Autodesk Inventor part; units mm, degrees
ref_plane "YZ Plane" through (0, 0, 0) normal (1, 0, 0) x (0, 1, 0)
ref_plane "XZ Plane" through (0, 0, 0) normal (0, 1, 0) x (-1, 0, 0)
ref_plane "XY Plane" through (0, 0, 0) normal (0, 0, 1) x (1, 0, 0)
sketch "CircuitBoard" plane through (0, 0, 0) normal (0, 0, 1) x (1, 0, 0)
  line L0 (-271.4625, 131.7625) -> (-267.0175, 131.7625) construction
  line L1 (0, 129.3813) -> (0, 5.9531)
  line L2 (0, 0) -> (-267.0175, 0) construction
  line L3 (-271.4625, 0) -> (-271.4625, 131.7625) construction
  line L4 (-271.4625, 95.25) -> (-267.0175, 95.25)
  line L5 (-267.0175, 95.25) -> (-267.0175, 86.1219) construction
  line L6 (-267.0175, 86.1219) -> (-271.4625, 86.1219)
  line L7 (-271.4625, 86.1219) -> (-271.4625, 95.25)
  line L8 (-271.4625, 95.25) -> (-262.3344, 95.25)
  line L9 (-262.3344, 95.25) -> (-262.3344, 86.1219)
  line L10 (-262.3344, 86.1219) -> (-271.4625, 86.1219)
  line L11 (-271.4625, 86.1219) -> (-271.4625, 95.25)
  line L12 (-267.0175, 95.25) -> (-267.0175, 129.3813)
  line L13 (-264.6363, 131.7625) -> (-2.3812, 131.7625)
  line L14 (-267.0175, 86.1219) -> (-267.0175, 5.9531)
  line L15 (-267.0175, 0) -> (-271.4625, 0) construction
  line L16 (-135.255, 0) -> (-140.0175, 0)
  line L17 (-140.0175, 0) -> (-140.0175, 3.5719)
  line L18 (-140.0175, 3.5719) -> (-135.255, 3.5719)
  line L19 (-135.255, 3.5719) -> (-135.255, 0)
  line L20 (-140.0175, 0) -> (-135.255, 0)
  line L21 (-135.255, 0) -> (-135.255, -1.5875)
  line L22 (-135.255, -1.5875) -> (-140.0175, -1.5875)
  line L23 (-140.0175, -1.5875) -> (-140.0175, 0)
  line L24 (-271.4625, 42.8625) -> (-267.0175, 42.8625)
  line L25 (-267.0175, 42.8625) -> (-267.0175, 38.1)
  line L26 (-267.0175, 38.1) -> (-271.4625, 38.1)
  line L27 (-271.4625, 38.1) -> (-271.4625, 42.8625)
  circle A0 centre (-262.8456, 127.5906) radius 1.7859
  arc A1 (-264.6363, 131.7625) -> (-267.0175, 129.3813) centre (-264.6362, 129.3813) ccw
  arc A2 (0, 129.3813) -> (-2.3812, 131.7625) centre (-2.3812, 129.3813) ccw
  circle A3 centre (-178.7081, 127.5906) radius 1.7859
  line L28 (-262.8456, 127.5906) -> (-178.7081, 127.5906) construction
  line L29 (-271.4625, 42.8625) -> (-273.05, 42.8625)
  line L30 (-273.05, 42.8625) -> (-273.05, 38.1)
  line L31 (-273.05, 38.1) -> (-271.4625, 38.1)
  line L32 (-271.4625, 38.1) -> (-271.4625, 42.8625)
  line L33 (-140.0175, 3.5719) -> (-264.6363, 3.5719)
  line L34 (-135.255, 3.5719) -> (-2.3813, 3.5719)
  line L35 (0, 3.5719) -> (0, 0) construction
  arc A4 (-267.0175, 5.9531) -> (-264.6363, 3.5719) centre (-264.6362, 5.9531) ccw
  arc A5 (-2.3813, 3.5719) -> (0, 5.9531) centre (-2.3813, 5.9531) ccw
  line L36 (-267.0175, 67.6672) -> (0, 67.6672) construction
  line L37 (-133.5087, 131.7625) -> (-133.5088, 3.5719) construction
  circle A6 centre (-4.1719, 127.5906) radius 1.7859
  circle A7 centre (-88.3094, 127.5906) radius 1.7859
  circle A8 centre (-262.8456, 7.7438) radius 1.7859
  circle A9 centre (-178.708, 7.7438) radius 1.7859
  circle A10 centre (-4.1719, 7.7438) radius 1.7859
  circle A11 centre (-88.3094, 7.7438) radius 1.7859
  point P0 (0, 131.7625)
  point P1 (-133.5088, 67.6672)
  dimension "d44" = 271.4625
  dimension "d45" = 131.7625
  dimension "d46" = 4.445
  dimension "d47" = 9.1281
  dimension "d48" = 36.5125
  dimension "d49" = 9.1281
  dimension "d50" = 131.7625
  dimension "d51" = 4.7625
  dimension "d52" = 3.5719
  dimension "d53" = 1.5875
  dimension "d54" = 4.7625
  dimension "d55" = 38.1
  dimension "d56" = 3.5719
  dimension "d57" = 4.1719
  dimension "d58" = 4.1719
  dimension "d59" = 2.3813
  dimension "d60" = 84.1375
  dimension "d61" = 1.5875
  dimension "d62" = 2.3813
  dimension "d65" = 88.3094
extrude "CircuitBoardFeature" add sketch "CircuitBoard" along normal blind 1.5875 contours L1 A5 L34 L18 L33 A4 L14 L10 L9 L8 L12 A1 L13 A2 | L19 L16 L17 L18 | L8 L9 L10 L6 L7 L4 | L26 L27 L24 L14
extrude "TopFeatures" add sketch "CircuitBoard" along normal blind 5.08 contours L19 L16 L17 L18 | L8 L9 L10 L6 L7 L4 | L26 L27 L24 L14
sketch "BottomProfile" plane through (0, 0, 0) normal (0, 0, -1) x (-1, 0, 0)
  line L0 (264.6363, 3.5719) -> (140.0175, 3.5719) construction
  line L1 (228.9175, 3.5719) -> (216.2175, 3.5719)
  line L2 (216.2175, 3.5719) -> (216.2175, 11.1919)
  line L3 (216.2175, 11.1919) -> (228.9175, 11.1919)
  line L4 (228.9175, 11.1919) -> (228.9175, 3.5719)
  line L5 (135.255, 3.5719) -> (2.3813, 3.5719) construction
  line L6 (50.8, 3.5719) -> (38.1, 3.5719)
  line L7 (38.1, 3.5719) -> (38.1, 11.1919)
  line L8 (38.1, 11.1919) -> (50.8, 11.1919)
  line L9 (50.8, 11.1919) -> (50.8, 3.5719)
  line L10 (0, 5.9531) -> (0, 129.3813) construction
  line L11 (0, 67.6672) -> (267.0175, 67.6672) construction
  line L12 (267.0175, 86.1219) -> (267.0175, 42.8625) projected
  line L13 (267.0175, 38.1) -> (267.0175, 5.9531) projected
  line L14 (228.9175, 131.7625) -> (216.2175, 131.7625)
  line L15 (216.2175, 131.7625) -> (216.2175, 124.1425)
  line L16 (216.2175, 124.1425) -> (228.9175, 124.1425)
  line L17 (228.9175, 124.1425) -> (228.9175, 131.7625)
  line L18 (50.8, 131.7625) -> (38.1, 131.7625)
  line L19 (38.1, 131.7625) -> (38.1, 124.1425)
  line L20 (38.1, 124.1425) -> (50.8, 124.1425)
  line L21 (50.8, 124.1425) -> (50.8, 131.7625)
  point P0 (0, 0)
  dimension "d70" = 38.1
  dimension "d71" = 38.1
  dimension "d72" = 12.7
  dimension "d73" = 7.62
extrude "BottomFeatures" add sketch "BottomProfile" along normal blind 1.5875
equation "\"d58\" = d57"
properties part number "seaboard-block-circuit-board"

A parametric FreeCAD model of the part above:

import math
import FreeCAD as App
import Part
import Sketcher

V = App.Vector
Q = App.Units.Quantity

doc = App.newDocument("Part")
body = doc.addObject("PartDesign::Body", "Body")

# Sketch on XY plane
sketch1 = doc.addObject("Sketcher::SketchObject", "Sketch")
body.addObject(sketch1)
sketch1.AttachmentSupport = (doc.XY_Plane, [""])
sketch1.MapMode = "FlatFace"
sketch1.addGeometry(Part.LineSegment(V(0, 6, 0), V(0, 129.4, 0)), False)
sketch1.addGeometry(Part.ArcOfCircle(Part.Circle(V(-2.4, 129.4, 0), V(0, 0, 1), 2.4), math.radians(0), math.radians(90)), False)
sketch1.addGeometry(Part.LineSegment(V(-2.4, 131.8, 0), V(-264.6, 131.8, 0)), False)
sketch1.addGeometry(Part.ArcOfCircle(Part.Circle(V(-264.6, 129.4, 0), V(0, 0, 1), 2.4), math.radians(90), math.radians(180)), False)
sketch1.addGeometry(Part.LineSegment(V(-267, 129.4, 0), V(-267, 95.2, 0)), False)
sketch1.addGeometry(Part.LineSegment(V(-267, 95.2, 0), V(-271.5, 95.2, 0)), False)
sketch1.addGeometry(Part.LineSegment(V(-271.5, 95.2, 0), V(-271.5, 86.1, 0)), False)
sketch1.addGeometry(Part.LineSegment(V(-271.5, 86.1, 0), V(-267, 86.1, 0)), False)
sketch1.addGeometry(Part.LineSegment(V(-267, 86.1, 0), V(-267, 42.9, 0)), False)
sketch1.addGeometry(Part.LineSegment(V(-267, 42.9, 0), V(-271.5, 42.9, 0)), False)
sketch1.addGeometry(Part.LineSegment(V(-271.5, 42.9, 0), V(-271.5, 38.1, 0)), False)
sketch1.addGeometry(Part.LineSegment(V(-271.5, 38.1, 0), V(-267, 38.1, 0)), False)
sketch1.addGeometry(Part.LineSegment(V(-267, 38.1, 0), V(-267, 6, 0)), False)
sketch1.addGeometry(Part.ArcOfCircle(Part.Circle(V(-264.6, 6, 0), V(0, 0, 1), 2.4), math.radians(180), math.radians(270)), False)
sketch1.addGeometry(Part.LineSegment(V(-264.6, 3.6, 0), V(-140, 3.6, 0)), False)
sketch1.addGeometry(Part.LineSegment(V(-140, 3.6, 0), V(-140, 0, 0)), False)
sketch1.addGeometry(Part.LineSegment(V(-140, 0, 0), V(-135.3, 0, 0)), False)
sketch1.addGeometry(Part.LineSegment(V(-135.3, 0, 0), V(-135.3, 3.6, 0)), False)
sketch1.addGeometry(Part.LineSegment(V(-135.3, 3.6, 0), V(-2.4, 3.6, 0)), False)
sketch1.addGeometry(Part.ArcOfCircle(Part.Circle(V(-2.4, 6, 0), V(0, 0, 1), 2.4), math.radians(-90), math.radians(0)), False)
sketch1.addGeometry(Part.Circle(V(-262.8, 7.7, 0), V(0, 0, 1), 1.8), False)
sketch1.addGeometry(Part.Circle(V(-178.7, 7.7, 0), V(0, 0, 1), 1.8), False)
sketch1.addGeometry(Part.Circle(V(-88.3, 7.7, 0), V(0, 0, 1), 1.8), False)
sketch1.addGeometry(Part.Circle(V(-4.2, 7.7, 0), V(0, 0, 1), 1.8), False)
sketch1.addGeometry(Part.Circle(V(-262.8, 127.6, 0), V(0, 0, 1), 1.8), False)
sketch1.addGeometry(Part.Circle(V(-178.7, 127.6, 0), V(0, 0, 1), 1.8), False)
sketch1.addGeometry(Part.Circle(V(-88.3, 127.6, 0), V(0, 0, 1), 1.8), False)
sketch1.addGeometry(Part.Circle(V(-4.2, 127.6, 0), V(0, 0, 1), 1.8), False)
sketch1.addConstraint(Sketcher.Constraint("Tangent", 0, 2, 1, 1))
sketch1.addConstraint(Sketcher.Constraint("Tangent", 1, 2, 2, 1))
sketch1.addConstraint(Sketcher.Constraint("Tangent", 2, 2, 3, 1))
sketch1.addConstraint(Sketcher.Constraint("Tangent", 3, 2, 4, 1))
sketch1.addConstraint(Sketcher.Constraint("Coincident", 4, 2, 5, 1))
sketch1.addConstraint(Sketcher.Constraint("Coincident", 5, 2, 6, 1))
sketch1.addConstraint(Sketcher.Constraint("Coincident", 6, 2, 7, 1))
sketch1.addConstraint(Sketcher.Constraint("Coincident", 7, 2, 8, 1))
sketch1.addConstraint(Sketcher.Constraint("Coincident", 8, 2, 9, 1))
sketch1.addConstraint(Sketcher.Constraint("Coincident", 9, 2, 10, 1))
sketch1.addConstraint(Sketcher.Constraint("Coincident", 10, 2, 11, 1))
sketch1.addConstraint(Sketcher.Constraint("Coincident", 11, 2, 12, 1))
sketch1.addConstraint(Sketcher.Constraint("Tangent", 12, 2, 13, 1))
sketch1.addConstraint(Sketcher.Constraint("Tangent", 13, 2, 14, 1))
sketch1.addConstraint(Sketcher.Constraint("Coincident", 14, 2, 15, 1))
sketch1.addConstraint(Sketcher.Constraint("Coincident", 15, 2, 16, 1))
sketch1.addConstraint(Sketcher.Constraint("Coincident", 16, 2, 17, 1))
sketch1.addConstraint(Sketcher.Constraint("Coincident", 17, 2, 18, 1))
sketch1.addConstraint(Sketcher.Constraint("Tangent", 18, 2, 19, 1))
sketch1.addConstraint(Sketcher.Constraint("Tangent", 19, 2, 0, 1))
sketch1.addConstraint(Sketcher.Constraint("Vertical", 0))
sketch1.addConstraint(Sketcher.Constraint("Horizontal", 2))
sketch1.addConstraint(Sketcher.Constraint("Vertical", 4))
sketch1.addConstraint(Sketcher.Constraint("Horizontal", 5))
sketch1.addConstraint(Sketcher.Constraint("Vertical", 6))
sketch1.addConstraint(Sketcher.Constraint("Horizontal", 7))
sketch1.addConstraint(Sketcher.Constraint("Vertical", 8))
sketch1.addConstraint(Sketcher.Constraint("Horizontal", 9))
sketch1.addConstraint(Sketcher.Constraint("Vertical", 10))
sketch1.addConstraint(Sketcher.Constraint("Horizontal", 11))
sketch1.addConstraint(Sketcher.Constraint("Vertical", 12))
sketch1.addConstraint(Sketcher.Constraint("Horizontal", 14))
sketch1.addConstraint(Sketcher.Constraint("Vertical", 15))
sketch1.addConstraint(Sketcher.Constraint("Horizontal", 16))
sketch1.addConstraint(Sketcher.Constraint("Vertical", 17))
sketch1.addConstraint(Sketcher.Constraint("Horizontal", 18))
sketch1.addConstraint(Sketcher.Constraint("Equal", 1, 3))
sketch1.addConstraint(Sketcher.Constraint("Equal", 3, 13))
sketch1.addConstraint(Sketcher.Constraint("Equal", 13, 19))
sketch1.addConstraint(Sketcher.Constraint("Equal", 20, 21))
sketch1.addConstraint(Sketcher.Constraint("Equal", 21, 22))
sketch1.addConstraint(Sketcher.Constraint("Equal", 22, 23))
sketch1.addConstraint(Sketcher.Constraint("Equal", 23, 24))
sketch1.addConstraint(Sketcher.Constraint("Equal", 24, 25))
sketch1.addConstraint(Sketcher.Constraint("Equal", 25, 26))
sketch1.addConstraint(Sketcher.Constraint("Equal", 26, 27))
sketch1.addConstraint(Sketcher.Constraint("PointOnObject", 0, 2, -2))
sketch1.addConstraint(Sketcher.Constraint("PointOnObject", 15, 2, -1))
sketch1.addConstraint(Sketcher.Constraint("Horizontal", 13, 3, 19, 3))
sketch1.addConstraint(Sketcher.Constraint("Horizontal", 20, 3, 21, 3))
sketch1.addConstraint(Sketcher.Constraint("Horizontal", 21, 3, 22, 3))
sketch1.addConstraint(Sketcher.Constraint("Horizontal", 22, 3, 23, 3))
sketch1.addConstraint(Sketcher.Constraint("Horizontal", 24, 3, 25, 3))
sketch1.addConstraint(Sketcher.Constraint("Horizontal", 25, 3, 26, 3))
sketch1.addConstraint(Sketcher.Constraint("Horizontal", 26, 3, 27, 3))
sketch1.addConstraint(Sketcher.Constraint("Vertical", 3, 3, 13, 3))
sketch1.addConstraint(Sketcher.Constraint("Vertical", 20, 3, 24, 3))
sketch1.addConstraint(Sketcher.Constraint("Vertical", 21, 3, 25, 3))
sketch1.addConstraint(Sketcher.Constraint("Vertical", 22, 3, 26, 3))
sketch1.addConstraint(Sketcher.Constraint("Vertical", 23, 3, 27, 3))
sketch1.addConstraint(Sketcher.Constraint("Vertical", 4, 2, 7, 2))
sketch1.addConstraint(Sketcher.Constraint("Vertical", 6, 2, 9, 2))
sketch1.addConstraint(Sketcher.Constraint("Equal", 16, 10))
sketch1.addConstraint(Sketcher.Constraint("Diameter", 20, Q("0.140622 in")))
sketch1.addConstraint(Sketcher.Constraint("Radius", 1, Q("0.093748 in")))
sketch1.addConstraint(Sketcher.Constraint("DistanceY", -1, 1, 10, 2, Q("1.5 in")))
sketch1.addConstraint(Sketcher.Constraint("DistanceX", 5, 2, 5, 1, Q("0.175 in")))
sketch1.addConstraint(Sketcher.Constraint("DistanceX", 16, 1, 16, 2, Q("0.1875 in")))
sketch1.addConstraint(Sketcher.Constraint("DistanceY", 6, 2, 6, 1, Q("0.3593701 in")))
sketch1.addConstraint(Sketcher.Constraint("DistanceY", 15, 2, 15, 1, Q("0.1406299 in")))
sketch1.addConstraint(Sketcher.Constraint("DistanceY", -1, 1, 1, 2, Q("5.1875 in")))
sketch1.addConstraint(Sketcher.Constraint("DistanceX", 5, 2, -1, 1, Q("10.6875 in")))
sketch1.addConstraint(Sketcher.Constraint("DistanceX", 20, 3, 21, 3, Q("3.3125 in")))
sketch1.addConstraint(Sketcher.Constraint("DistanceX", 22, 3, 23, 3, Q("3.3125 in")))
sketch1.addConstraint(Sketcher.Constraint("DistanceY", 4, 2, 2, 2, Q("1.4375 in")))
sketch1.addConstraint(Sketcher.Constraint("DistanceX", 14, 1, 14, 2, Q("4.906252 in")))
sketch1.addConstraint(Sketcher.Constraint("DistanceX", 22, 3, -1, 1, 88.3094))
sketch1.addConstraint(Sketcher.Constraint("DistanceY", 27, 3, 1, 2, 4.172))
sketch1.addConstraint(Sketcher.Constraint("DistanceX", 3, 2, 24, 3, 4.1718))
sketch1.addConstraint(Sketcher.Constraint("DistanceY", 13, 2, 20, 3, 4.172))
pad1 = doc.addObject("PartDesign::Pad", "Pad")
body.addObject(pad1)
pad1.Profile = sketch1
pad1.Length = Q("0.0625 in")

# Sketch on XY plane
sketch2 = doc.addObject("Sketcher::SketchObject", "Sketch001")
body.addObject(sketch2)
sketch2.AttachmentSupport = (doc.XY_Plane, [""])
sketch2.MapMode = "FlatFace"
sketch2.addGeometry(Part.LineSegment(V(-135.3, 0, 0), V(-135.3, 3.6, 0)), False)
sketch2.addGeometry(Part.LineSegment(V(-135.3, 3.6, 0), V(-140, 3.6, 0)), False)
sketch2.addGeometry(Part.LineSegment(V(-140, 3.6, 0), V(-140, 0, 0)), False)
sketch2.addGeometry(Part.LineSegment(V(-140, 0, 0), V(-135.3, 0, 0)), False)
sketch2.addGeometry(Part.LineSegment(V(-262.3, 95.2, 0), V(-271.5, 95.2, 0)), False)
sketch2.addGeometry(Part.LineSegment(V(-271.5, 95.2, 0), V(-271.5, 86.1, 0)), False)
sketch2.addGeometry(Part.LineSegment(V(-271.5, 86.1, 0), V(-262.3, 86.1, 0)), False)
sketch2.addGeometry(Part.LineSegment(V(-262.3, 86.1, 0), V(-262.3, 95.2, 0)), False)
sketch2.addGeometry(Part.LineSegment(V(-271.5, 38.1, 0), V(-267, 38.1, 0)), False)
sketch2.addGeometry(Part.LineSegment(V(-267, 38.1, 0), V(-267, 42.9, 0)), False)
sketch2.addGeometry(Part.LineSegment(V(-267, 42.9, 0), V(-271.5, 42.9, 0)), False)
sketch2.addGeometry(Part.LineSegment(V(-271.5, 42.9, 0), V(-271.5, 38.1, 0)), False)
sketch2.addConstraint(Sketcher.Constraint("Coincident", 0, 2, 1, 1))
sketch2.addConstraint(Sketcher.Constraint("Coincident", 1, 2, 2, 1))
sketch2.addConstraint(Sketcher.Constraint("Coincident", 2, 2, 3, 1))
sketch2.addConstraint(Sketcher.Constraint("Coincident", 3, 2, 0, 1))
sketch2.addConstraint(Sketcher.Constraint("Coincident", 4, 2, 5, 1))
sketch2.addConstraint(Sketcher.Constraint("Coincident", 5, 2, 6, 1))
sketch2.addConstraint(Sketcher.Constraint("Coincident", 6, 2, 7, 1))
sketch2.addConstraint(Sketcher.Constraint("Coincident", 7, 2, 4, 1))
sketch2.addConstraint(Sketcher.Constraint("Coincident", 8, 2, 9, 1))
sketch2.addConstraint(Sketcher.Constraint("Coincident", 9, 2, 10, 1))
sketch2.addConstraint(Sketcher.Constraint("Coincident", 10, 2, 11, 1))
sketch2.addConstraint(Sketcher.Constraint("Coincident", 11, 2, 8, 1))
sketch2.addConstraint(Sketcher.Constraint("Vertical", 0))
sketch2.addConstraint(Sketcher.Constraint("Horizontal", 1))
sketch2.addConstraint(Sketcher.Constraint("Vertical", 2))
sketch2.addConstraint(Sketcher.Constraint("Horizontal", 3))
sketch2.addConstraint(Sketcher.Constraint("Horizontal", 4))
sketch2.addConstraint(Sketcher.Constraint("Vertical", 5))
sketch2.addConstraint(Sketcher.Constraint("Horizontal", 6))
sketch2.addConstraint(Sketcher.Constraint("Vertical", 7))
sketch2.addConstraint(Sketcher.Constraint("Horizontal", 8))
sketch2.addConstraint(Sketcher.Constraint("Vertical", 9))
sketch2.addConstraint(Sketcher.Constraint("Horizontal", 10))
sketch2.addConstraint(Sketcher.Constraint("Vertical", 11))
sketch2.addConstraint(Sketcher.Constraint("PointOnObject", 2, 2, -1))
sketch2.addConstraint(Sketcher.Constraint("Vertical", 5, 2, 10, 2))
sketch2.addConstraint(Sketcher.Constraint("Equal", 6, 5))
sketch2.addConstraint(Sketcher.Constraint("Equal", 3, 9))
sketch2.addConstraint(Sketcher.Constraint("DistanceY", -1, 1, 8, 2, Q("1.5 in")))
sketch2.addConstraint(Sketcher.Constraint("DistanceX", 1, 2, 1, 1, Q("0.1875 in")))
sketch2.addConstraint(Sketcher.Constraint("DistanceX", 4, 2, 4, 1, Q("0.3593701 in")))
sketch2.addConstraint(Sketcher.Constraint("DistanceX", 8, 1, 8, 2, Q("0.175 in")))
sketch2.addConstraint(Sketcher.Constraint("DistanceY", 0, 1, 0, 2, Q("0.1406299 in")))
sketch2.addConstraint(Sketcher.Constraint("DistanceX", 4, 2, -1, 1, Q("10.6875 in")))
sketch2.addConstraint(Sketcher.Constraint("DistanceX", 8, 2, 1, 2, Q("5 in")))
sketch2.addConstraint(Sketcher.Constraint("DistanceY", -1, 1, 4, 2, Q("3.75 in")))
pad2 = doc.addObject("PartDesign::Pad", "Pad001")
body.addObject(pad2)
pad2.Profile = sketch2
pad2.Length = Q("0.2 in")

# Sketch on XY plane
sketch3 = doc.addObject("Sketcher::SketchObject", "Sketch002")
body.addObject(sketch3)
sketch3.AttachmentSupport = (doc.XY_Plane, [""])
sketch3.MapMode = "FlatFace"
sketch3.addGeometry(Part.LineSegment(V(-216, 4, 0), V(-229, 4, 0)), False)
sketch3.addGeometry(Part.LineSegment(V(-229, 4, 0), V(-229, 11, 0)), False)
sketch3.addGeometry(Part.LineSegment(V(-229, 11, 0), V(-216, 11, 0)), False)
sketch3.addGeometry(Part.LineSegment(V(-216, 11, 0), V(-216, 4, 0)), False)
sketch3.addGeometry(Part.LineSegment(V(-38, 4, 0), V(-51, 4, 0)), False)
sketch3.addGeometry(Part.LineSegment(V(-51, 4, 0), V(-51, 11, 0)), False)
sketch3.addGeometry(Part.LineSegment(V(-51, 11, 0), V(-38, 11, 0)), False)
sketch3.addGeometry(Part.LineSegment(V(-38, 11, 0), V(-38, 4, 0)), False)
sketch3.addGeometry(Part.LineSegment(V(-229, 124, 0), V(-229, 132, 0)), False)
sketch3.addGeometry(Part.LineSegment(V(-229, 132, 0), V(-216, 132, 0)), False)
sketch3.addGeometry(Part.LineSegment(V(-216, 132, 0), V(-216, 124, 0)), False)
sketch3.addGeometry(Part.LineSegment(V(-216, 124, 0), V(-229, 124, 0)), False)
sketch3.addGeometry(Part.LineSegment(V(-51, 124, 0), V(-51, 132, 0)), False)
sketch3.addGeometry(Part.LineSegment(V(-51, 132, 0), V(-38, 132, 0)), False)
sketch3.addGeometry(Part.LineSegment(V(-38, 132, 0), V(-38, 124, 0)), False)
sketch3.addGeometry(Part.LineSegment(V(-38, 124, 0), V(-51, 124, 0)), False)
sketch3.addConstraint(Sketcher.Constraint("Coincident", 0, 2, 1, 1))
sketch3.addConstraint(Sketcher.Constraint("Coincident", 1, 2, 2, 1))
sketch3.addConstraint(Sketcher.Constraint("Coincident", 2, 2, 3, 1))
sketch3.addConstraint(Sketcher.Constraint("Coincident", 3, 2, 0, 1))
sketch3.addConstraint(Sketcher.Constraint("Coincident", 4, 2, 5, 1))
sketch3.addConstraint(Sketcher.Constraint("Coincident", 5, 2, 6, 1))
sketch3.addConstraint(Sketcher.Constraint("Coincident", 6, 2, 7, 1))
sketch3.addConstraint(Sketcher.Constraint("Coincident", 7, 2, 4, 1))
sketch3.addConstraint(Sketcher.Constraint("Coincident", 8, 2, 9, 1))
sketch3.addConstraint(Sketcher.Constraint("Coincident", 9, 2, 10, 1))
sketch3.addConstraint(Sketcher.Constraint("Coincident", 10, 2, 11, 1))
sketch3.addConstraint(Sketcher.Constraint("Coincident", 11, 2, 8, 1))
sketch3.addConstraint(Sketcher.Constraint("Coincident", 12, 2, 13, 1))
sketch3.addConstraint(Sketcher.Constraint("Coincident", 13, 2, 14, 1))
sketch3.addConstraint(Sketcher.Constraint("Coincident", 14, 2, 15, 1))
sketch3.addConstraint(Sketcher.Constraint("Coincident", 15, 2, 12, 1))
sketch3.addConstraint(Sketcher.Constraint("Horizontal", 0))
sketch3.addConstraint(Sketcher.Constraint("Vertical", 1))
sketch3.addConstraint(Sketcher.Constraint("Horizontal", 2))
sketch3.addConstraint(Sketcher.Constraint("Vertical", 3))
sketch3.addConstraint(Sketcher.Constraint("Horizontal", 4))
sketch3.addConstraint(Sketcher.Constraint("Vertical", 5))
sketch3.addConstraint(Sketcher.Constraint("Horizontal", 6))
sketch3.addConstraint(Sketcher.Constraint("Vertical", 7))
sketch3.addConstraint(Sketcher.Constraint("Vertical", 8))
sketch3.addConstraint(Sketcher.Constraint("Horizontal", 9))
sketch3.addConstraint(Sketcher.Constraint("Vertical", 10))
sketch3.addConstraint(Sketcher.Constraint("Horizontal", 11))
sketch3.addConstraint(Sketcher.Constraint("Vertical", 12))
sketch3.addConstraint(Sketcher.Constraint("Horizontal", 13))
sketch3.addConstraint(Sketcher.Constraint("Vertical", 14))
sketch3.addConstraint(Sketcher.Constraint("Horizontal", 15))
sketch3.addConstraint(Sketcher.Constraint("Horizontal", 3, 2, 4, 2))
sketch3.addConstraint(Sketcher.Constraint("Horizontal", 2, 2, 5, 2))
sketch3.addConstraint(Sketcher.Constraint("Horizontal", 9, 2, 12, 2))
sketch3.addConstraint(Sketcher.Constraint("Horizontal", 11, 2, 14, 2))
sketch3.addConstraint(Sketcher.Constraint("Vertical", 1, 2, 8, 2))
sketch3.addConstraint(Sketcher.Constraint("Vertical", 3, 2, 9, 2))
sketch3.addConstraint(Sketcher.Constraint("Vertical", 5, 2, 12, 2))
sketch3.addConstraint(Sketcher.Constraint("Vertical", 7, 2, 13, 2))
sketch3.addConstraint(Sketcher.Constraint("Equal", 2, 4))
sketch3.addConstraint(Sketcher.Constraint("Equal", 7, 8))
sketch3.addConstraint(Sketcher.Constraint("DistanceX", 0, 2, 0, 1, Q("0.5 in")))
sketch3.addConstraint(Sketcher.Constraint("DistanceY", 1, 1, 1, 2, Q("0.3 in")))
sketch3.addConstraint(Sketcher.Constraint("DistanceX", 6, 2, -1, 1, Q("1.5 in")))
sketch3.addConstraint(Sketcher.Constraint("DistanceY", -1, 1, 0, 2, Q("0.1406299 in")))
sketch3.addConstraint(Sketcher.Constraint("DistanceY", -1, 1, 8, 2, Q("5.1875 in")))
sketch3.addConstraint(Sketcher.Constraint("DistanceX", 0, 2, -1, 1, Q("9.0125 in")))
pad3 = doc.addObject("PartDesign::Pad", "Pad002")
body.addObject(pad3)
pad3.Profile = sketch3
pad3.Length = Q("0.0625 in")
pad3.Reversed = True

doc.recompute()
